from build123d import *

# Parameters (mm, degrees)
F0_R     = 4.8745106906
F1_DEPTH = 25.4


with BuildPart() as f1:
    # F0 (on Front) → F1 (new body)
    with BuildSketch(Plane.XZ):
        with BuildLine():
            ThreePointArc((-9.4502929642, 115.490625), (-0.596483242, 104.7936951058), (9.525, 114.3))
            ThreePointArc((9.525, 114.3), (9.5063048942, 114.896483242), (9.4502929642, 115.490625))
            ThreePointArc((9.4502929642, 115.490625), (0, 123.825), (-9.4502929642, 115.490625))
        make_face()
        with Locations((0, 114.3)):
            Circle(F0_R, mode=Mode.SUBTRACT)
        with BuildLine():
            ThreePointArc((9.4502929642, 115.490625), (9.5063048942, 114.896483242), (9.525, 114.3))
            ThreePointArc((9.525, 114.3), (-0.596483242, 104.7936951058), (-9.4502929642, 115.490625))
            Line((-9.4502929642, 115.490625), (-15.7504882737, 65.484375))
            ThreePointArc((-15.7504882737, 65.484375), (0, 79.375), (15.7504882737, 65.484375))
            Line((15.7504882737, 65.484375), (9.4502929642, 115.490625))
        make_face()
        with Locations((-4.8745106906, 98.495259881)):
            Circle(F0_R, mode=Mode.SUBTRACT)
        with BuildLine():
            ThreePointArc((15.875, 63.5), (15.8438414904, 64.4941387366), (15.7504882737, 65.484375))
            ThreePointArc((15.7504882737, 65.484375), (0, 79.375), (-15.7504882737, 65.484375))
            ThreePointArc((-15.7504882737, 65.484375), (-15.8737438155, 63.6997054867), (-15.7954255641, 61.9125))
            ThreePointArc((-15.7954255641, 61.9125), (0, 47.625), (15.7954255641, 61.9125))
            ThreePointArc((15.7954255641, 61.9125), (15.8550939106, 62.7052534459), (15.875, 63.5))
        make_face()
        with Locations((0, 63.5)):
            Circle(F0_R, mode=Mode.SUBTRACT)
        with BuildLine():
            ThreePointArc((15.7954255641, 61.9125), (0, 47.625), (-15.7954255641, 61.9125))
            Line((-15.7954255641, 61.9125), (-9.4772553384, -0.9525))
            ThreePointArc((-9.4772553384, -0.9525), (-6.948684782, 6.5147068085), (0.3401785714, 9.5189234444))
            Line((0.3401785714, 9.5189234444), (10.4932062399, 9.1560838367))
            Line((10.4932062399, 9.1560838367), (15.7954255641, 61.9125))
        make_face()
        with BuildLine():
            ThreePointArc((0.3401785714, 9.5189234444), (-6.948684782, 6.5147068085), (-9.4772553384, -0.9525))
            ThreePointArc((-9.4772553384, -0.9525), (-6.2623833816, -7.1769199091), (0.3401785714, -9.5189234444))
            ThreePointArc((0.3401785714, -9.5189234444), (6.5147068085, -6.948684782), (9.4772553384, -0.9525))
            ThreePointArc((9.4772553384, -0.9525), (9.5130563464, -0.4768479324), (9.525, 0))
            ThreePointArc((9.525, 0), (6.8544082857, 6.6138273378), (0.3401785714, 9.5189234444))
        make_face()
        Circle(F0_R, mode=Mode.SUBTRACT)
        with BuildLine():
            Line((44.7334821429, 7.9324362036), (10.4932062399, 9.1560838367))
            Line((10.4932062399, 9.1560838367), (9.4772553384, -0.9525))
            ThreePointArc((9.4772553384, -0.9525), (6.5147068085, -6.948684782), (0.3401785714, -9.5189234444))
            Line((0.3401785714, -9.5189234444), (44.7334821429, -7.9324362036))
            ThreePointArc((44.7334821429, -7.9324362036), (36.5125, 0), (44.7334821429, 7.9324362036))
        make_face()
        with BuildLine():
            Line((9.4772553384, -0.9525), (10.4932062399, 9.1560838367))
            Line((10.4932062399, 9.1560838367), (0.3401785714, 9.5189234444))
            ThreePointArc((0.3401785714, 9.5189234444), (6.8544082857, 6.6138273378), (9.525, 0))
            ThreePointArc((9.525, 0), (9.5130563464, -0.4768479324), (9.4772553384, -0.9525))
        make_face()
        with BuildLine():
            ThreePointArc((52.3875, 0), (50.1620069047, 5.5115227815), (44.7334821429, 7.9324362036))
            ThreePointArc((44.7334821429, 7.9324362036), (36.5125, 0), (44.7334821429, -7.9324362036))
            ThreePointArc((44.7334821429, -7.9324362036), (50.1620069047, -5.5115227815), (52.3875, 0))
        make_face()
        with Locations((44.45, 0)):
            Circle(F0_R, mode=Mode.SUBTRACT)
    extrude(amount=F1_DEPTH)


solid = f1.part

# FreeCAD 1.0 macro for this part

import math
import FreeCAD as App
import Part
import Sketcher
Q = App.Units.Quantity

doc = App.newDocument("Part")
params = doc.addObject("Spreadsheet::Sheet", "Params")
for row, (alias, value) in enumerate([
    ("sketch1_radius", "0.625 in"),
    ("sketch1_radius2", "0.375 in"),
    ("sketch1_radius3", "0.3125 in"),
    ("pad1_length", "1 in"),
], start=1):
    params.set(f"A{row}", alias)
    params.set(f"B{row}", "=" + value)
    params.setAlias(f"B{row}", alias)

body = doc.addObject("PartDesign::Body", "Body")

# Sketch on XZ plane
sketch1 = body.newObject("Sketcher::SketchObject", "Sketch")
sketch1.AttachmentSupport = (doc.getObject("XZ_Plane"), [""])
sketch1.MapMode = "FlatFace"
sketch1.addGeometry([
    Part.LineSegment(App.Vector(44.7, 7.9, 0), App.Vector(10.5, 9.2, 0)),  # 0
    Part.LineSegment(App.Vector(10.5, 9.2, 0), App.Vector(15.8, 61.9, 0)),  # 1
    Part.ArcOfCircle(Part.Circle(App.Vector(0, 63.5, 0), App.Vector(0, 0, 1), 15.9), math.radians(-5.74), math.radians(0)),  # 2
    Part.ArcOfCircle(Part.Circle(App.Vector(0, 63.5, 0), App.Vector(0, 0, 1), 15.9), math.radians(0), math.radians(7.18)),  # 3
    Part.LineSegment(App.Vector(15.8, 65.5, 0), App.Vector(9.5, 115.5, 0)),  # 4
    Part.ArcOfCircle(Part.Circle(App.Vector(0, 114.3, 0), App.Vector(0, 0, 1), 9.5), math.radians(7), math.radians(173)),  # 5
    Part.LineSegment(App.Vector(-9.5, 115.5, 0), App.Vector(-15.8, 65.5, 0)),  # 6
    Part.ArcOfCircle(Part.Circle(App.Vector(0, 63.5, 0), App.Vector(0, 0, 1), 15.9), math.radians(172.82), math.radians(185.74)),  # 7
    Part.LineSegment(App.Vector(-15.8, 61.9, 0), App.Vector(-9.5, -1, 0)),  # 8
    Part.ArcOfCircle(Part.Circle(App.Vector(0, 0, 0), App.Vector(0, 0, 1), 9.5), math.radians(-174), math.radians(-88)),  # 9
    Part.LineSegment(App.Vector(0.3, -9.5, 0), App.Vector(44.7, -7.9, 0)),  # 10
    Part.ArcOfCircle(Part.Circle(App.Vector(44.5, 0, 0), App.Vector(0, 0, 1), 7.9), math.radians(-88), math.radians(0)),  # 11
    Part.ArcOfCircle(Part.Circle(App.Vector(44.5, 0, 0), App.Vector(0, 0, 1), 7.9), math.radians(0), math.radians(88)),  # 12
    Part.Circle(App.Vector(0, 0, 0), App.Vector(0, 0, 1), 4.9),  # 13
    Part.Circle(App.Vector(44.5, 0, 0), App.Vector(0, 0, 1), 4.9),  # 14
    Part.Circle(App.Vector(0, 63.5, 0), App.Vector(0, 0, 1), 4.9),  # 15
    Part.Circle(App.Vector(-4.9, 98.5, 0), App.Vector(0, 0, 1), 4.9),  # 16
    Part.Circle(App.Vector(0, 114.3, 0), App.Vector(0, 0, 1), 4.9),  # 17
], False)
sketch1.addConstraint([
    Sketcher.Constraint("Coincident", 0, 2, 1, 1),
    Sketcher.Constraint("Tangent", 1, 2, 2, 1),
    Sketcher.Constraint("Tangent", 2, 2, 3, 1),
    Sketcher.Constraint("Tangent", 3, 2, 4, 1),
    Sketcher.Constraint("Tangent", 4, 2, 5, 1),
    Sketcher.Constraint("Tangent", 5, 2, 6, 1),
    Sketcher.Constraint("Tangent", 6, 2, 7, 1),
    Sketcher.Constraint("Tangent", 7, 2, 8, 1),
    Sketcher.Constraint("Tangent", 8, 2, 9, 1),
    Sketcher.Constraint("Tangent", 9, 2, 10, 1),
    Sketcher.Constraint("Tangent", 10, 2, 11, 1),
    Sketcher.Constraint("Tangent", 11, 2, 12, 1),
    Sketcher.Constraint("Tangent", 12, 2, 0, 1),
    Sketcher.Constraint("Coincident", 9, 3, -1, 1),
    Sketcher.Constraint("Coincident", 13, 3, -1, 1),
    Sketcher.Constraint("Coincident", 7, 3, 2, 3),
    Sketcher.Constraint("Coincident", 14, 3, 11, 3),
    Sketcher.Constraint("Coincident", 15, 3, 2, 3),
    Sketcher.Constraint("Coincident", 17, 3, 5, 3),
    Sketcher.Constraint("Equal", 2, 3),
    Sketcher.Constraint("Equal", 3, 7),
    Sketcher.Constraint("Equal", 5, 9),
    Sketcher.Constraint("Equal", 11, 12),
    Sketcher.Constraint("Equal", 13, 14),
    Sketcher.Constraint("Equal", 14, 15),
    Sketcher.Constraint("Equal", 15, 16),
    Sketcher.Constraint("Equal", 16, 17),
    Sketcher.Constraint("Symmetric", 4, 2, 5, 2, -2),
    Sketcher.Constraint("Symmetric", 10, 2, 12, 2, -1),
    Sketcher.Constraint("PointOnObject", 11, 2, -1),
    Sketcher.Constraint("Horizontal", 15, 3, 2, 2),
    Sketcher.Constraint("Horizontal", 1, 2, 7, 2),
    Sketcher.Constraint("Radius", 2, Q("0.625 in")),
    Sketcher.Constraint("Radius", 5, Q("0.375 in")),
    Sketcher.Constraint("Radius", 11, Q("0.3125 in")),
    Sketcher.Constraint("DistanceY", 2, 3, 5, 3, Q("2 in")),
    Sketcher.Constraint("DistanceY", -1, 1, 2, 3, Q("2.5 in")),
    Sketcher.Constraint("DistanceX", -1, 1, 11, 3, Q("1.75 in")),
    Sketcher.Constraint("Diameter", 13, 9.749021),
    Sketcher.Constraint("DistanceX", 16, 3, -1, 1, 4.874511),
    Sketcher.Constraint("DistanceY", -1, 1, 16, 3, 98.49526),
])
sketch1.setExpression("Constraints[32]", "Params.sketch1_radius")
sketch1.setExpression("Constraints[33]", "Params.sketch1_radius2")
sketch1.setExpression("Constraints[34]", "Params.sketch1_radius3")
pad1 = body.newObject("PartDesign::Pad", "Pad")
pad1.Profile = sketch1
pad1.setExpression("Length", "Params.pad1_length")

doc.recompute()
